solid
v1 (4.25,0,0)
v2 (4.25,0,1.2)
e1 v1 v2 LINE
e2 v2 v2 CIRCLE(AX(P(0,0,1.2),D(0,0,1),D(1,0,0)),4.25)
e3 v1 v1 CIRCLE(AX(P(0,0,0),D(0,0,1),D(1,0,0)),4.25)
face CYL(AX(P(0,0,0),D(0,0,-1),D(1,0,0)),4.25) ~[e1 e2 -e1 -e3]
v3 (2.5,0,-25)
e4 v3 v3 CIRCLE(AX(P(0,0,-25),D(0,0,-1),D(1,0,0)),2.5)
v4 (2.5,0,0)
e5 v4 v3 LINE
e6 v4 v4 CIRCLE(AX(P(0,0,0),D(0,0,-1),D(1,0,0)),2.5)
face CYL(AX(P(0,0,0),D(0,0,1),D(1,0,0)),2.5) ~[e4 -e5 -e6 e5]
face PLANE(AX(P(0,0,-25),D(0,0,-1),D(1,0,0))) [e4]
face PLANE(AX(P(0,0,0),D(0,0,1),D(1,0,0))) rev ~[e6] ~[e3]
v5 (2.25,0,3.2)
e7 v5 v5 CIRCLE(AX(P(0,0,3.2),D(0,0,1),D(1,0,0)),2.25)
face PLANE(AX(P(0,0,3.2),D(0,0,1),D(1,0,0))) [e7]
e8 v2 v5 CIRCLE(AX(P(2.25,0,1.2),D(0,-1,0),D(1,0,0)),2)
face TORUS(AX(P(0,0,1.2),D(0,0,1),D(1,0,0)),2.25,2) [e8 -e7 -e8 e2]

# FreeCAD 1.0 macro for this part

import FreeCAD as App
import Part
import Sketcher
from FreeCAD import Vector


def edges_at(feature, points):
    """Names of the edges that pass closest to the given points."""
    edges = feature.Shape.Edges
    near = lambda p: min(range(len(edges)), key=lambda i: edges[i].distToShape(Part.Vertex(*p))[0])
    return sorted({f"Edge{near(p) + 1}" for p in points})

doc = App.newDocument("Part")
body = doc.addObject("PartDesign::Body", "Body")

# Sketch on XY plane
sketch1 = body.newObject("Sketcher::SketchObject", "Sketch")
sketch1.AttachmentSupport = (doc.getObject("XY_Plane"), [""])
sketch1.MapMode = "FlatFace"
sketch1.addGeometry(Part.Circle(Vector(0, 0, 0), Vector(0, 0, 1), 4.2), False)
sketch1.addConstraint(Sketcher.Constraint("Coincident", 0, 3, -1, 1))
sketch1.addConstraint(Sketcher.Constraint("Diameter", 0, 8.5))
pad1 = body.newObject("PartDesign::Pad", "Pad")
pad1.Profile = sketch1
pad1.Length = 3.2
doc.recompute()

fillet = body.newObject("PartDesign::Fillet", "Fillet")
fillet.Base = (pad1, edges_at(pad1, [(-3.962, -1.537, 3.2)]))
fillet.Radius = 2

# Sketch on XY plane
sketch2 = body.newObject("Sketcher::SketchObject", "Sketch001")
sketch2.AttachmentSupport = (doc.getObject("XY_Plane"), [""])
sketch2.MapMode = "FlatFace"
sketch2.addGeometry(Part.Circle(Vector(0, 0, 0), Vector(0, 0, 1), 2.5), False)
sketch2.addConstraint(Sketcher.Constraint("Coincident", 0, 3, -1, 1))
sketch2.addConstraint(Sketcher.Constraint("Diameter", 0, 5.0))
pad2 = body.newObject("PartDesign::Pad", "Pad001")
pad2.Profile = sketch2
pad2.Length = 25
pad2.Reversed = True

doc.recompute()
